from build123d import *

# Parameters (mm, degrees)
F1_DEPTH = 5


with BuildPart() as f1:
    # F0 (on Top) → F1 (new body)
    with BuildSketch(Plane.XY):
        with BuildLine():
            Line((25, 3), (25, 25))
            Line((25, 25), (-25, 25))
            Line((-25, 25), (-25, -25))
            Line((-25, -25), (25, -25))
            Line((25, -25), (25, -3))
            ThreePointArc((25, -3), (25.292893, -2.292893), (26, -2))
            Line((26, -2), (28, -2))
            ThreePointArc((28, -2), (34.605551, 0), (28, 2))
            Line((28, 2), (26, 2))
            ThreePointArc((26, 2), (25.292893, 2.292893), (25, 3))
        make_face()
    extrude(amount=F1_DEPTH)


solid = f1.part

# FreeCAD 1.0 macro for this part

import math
import FreeCAD as App
import Part
import Sketcher
from FreeCAD import Vector
Q = App.Units.Quantity

doc = App.newDocument("Part")
body = doc.addObject("PartDesign::Body", "Body")

# Sketch on XY plane
sketch1 = doc.addObject("Sketcher::SketchObject", "Sketch")
body.addObject(sketch1)
sketch1.AttachmentSupport = (doc.XY_Plane, [""])
sketch1.MapMode = "FlatFace"
sketch1.addGeometry([
    Part.LineSegment(Vector(25, 3, 0), Vector(25, 25, 0)),  # 0
    Part.LineSegment(Vector(25, 25, 0), Vector(-25, 25, 0)),  # 1
    Part.LineSegment(Vector(-25, 25, 0), Vector(-25, -25, 0)),  # 2
    Part.LineSegment(Vector(-25, -25, 0), Vector(25, -25, 0)),  # 3
    Part.LineSegment(Vector(25, -25, 0), Vector(25, -3, 0)),  # 4
    Part.ArcOfCircle(Part.Circle(Vector(26, -3, 0), Vector(0, 0, 1), 1), math.radians(90), math.radians(180)),  # 5
    Part.LineSegment(Vector(26, -2, 0), Vector(28, -2, 0)),  # 6
    Part.ArcOfCircle(Part.Circle(Vector(31, 0, 0), Vector(0, 0, 1), 3.6), math.radians(-146), math.radians(146)),  # 7
    Part.LineSegment(Vector(28, 2, 0), Vector(26, 2, 0)),  # 8
    Part.ArcOfCircle(Part.Circle(Vector(26, 3, 0), Vector(0, 0, 1), 1), math.radians(180), math.radians(270)),  # 9
], False)
sketch1.addConstraint([
    Sketcher.Constraint("Coincident", 0, 2, 1, 1),
    Sketcher.Constraint("Coincident", 1, 2, 2, 1),
    Sketcher.Constraint("Coincident", 2, 2, 3, 1),
    Sketcher.Constraint("Coincident", 3, 2, 4, 1),
    Sketcher.Constraint("Tangent", 4, 2, 5, 2),
    Sketcher.Constraint("Tangent", 5, 1, 6, 1),
    Sketcher.Constraint("Coincident", 6, 2, 7, 1),
    Sketcher.Constraint("Coincident", 7, 2, 8, 1),
    Sketcher.Constraint("Tangent", 8, 2, 9, 2),
    Sketcher.Constraint("Tangent", 9, 1, 0, 1),
    Sketcher.Constraint("Vertical", 0),
    Sketcher.Constraint("Horizontal", 1),
    Sketcher.Constraint("Vertical", 2),
    Sketcher.Constraint("Horizontal", 3),
    Sketcher.Constraint("Vertical", 4),
    Sketcher.Constraint("Horizontal", 6),
    Sketcher.Constraint("Horizontal", 8),
    Sketcher.Constraint("Equal", 5, 9),
    Sketcher.Constraint("Symmetric", 0, 2, 2, 2, -1, 1),
    Sketcher.Constraint("Symmetric", 5, 3, 9, 3, -1),
    Sketcher.Constraint("PointOnObject", 7, 3, -1),
    Sketcher.Constraint("Equal", 3, 2),
    Sketcher.Constraint("Radius", 5, Q("0.999999 mm")),
    Sketcher.Constraint("DistanceX", 1, 2, 1, 1, Q("50 mm")),
    Sketcher.Constraint("DistanceX", 6, 1, 6, 2, Q("2 mm")),
    Sketcher.Constraint("DistanceY", 0, 1, 0, 2, Q("22 mm")),
    Sketcher.Constraint("DistanceX", -1, 1, 7, 3, Q("31 mm")),
])
pad1 = doc.addObject("PartDesign::Pad", "Pad")
body.addObject(pad1)
pad1.Profile = sketch1
pad1.Length = 5

doc.recompute()
